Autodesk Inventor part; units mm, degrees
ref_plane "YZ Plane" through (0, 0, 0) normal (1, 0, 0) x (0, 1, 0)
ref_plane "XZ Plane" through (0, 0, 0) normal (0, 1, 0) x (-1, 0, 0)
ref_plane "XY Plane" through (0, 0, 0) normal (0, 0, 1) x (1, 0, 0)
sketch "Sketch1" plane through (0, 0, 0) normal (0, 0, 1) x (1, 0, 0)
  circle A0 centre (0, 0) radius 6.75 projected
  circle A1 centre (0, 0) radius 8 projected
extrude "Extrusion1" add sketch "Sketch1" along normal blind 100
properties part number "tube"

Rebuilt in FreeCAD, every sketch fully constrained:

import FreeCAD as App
import Part
import Sketcher
from FreeCAD import Vector
Q = App.Units.Quantity

doc = App.newDocument("Part")
body = doc.addObject("PartDesign::Body", "Body")

# Sketch on XY plane
sketch1 = body.newObject("Sketcher::SketchObject", "Sketch")
sketch1.AttachmentSupport = (doc.getObject("XY_Plane"), [""])
sketch1.MapMode = "FlatFace"
sketch1.addGeometry([
    Part.Circle(Vector(0, 0, 0), Vector(0, 0, 1), 8),
    Part.Circle(Vector(0, 0, 0), Vector(0, 0, 1), 7),
], False)
sketch1.addConstraint([
    Sketcher.Constraint("Coincident", 0, 3, -1, 1),
    Sketcher.Constraint("Coincident", 1, 3, -1, 1),
    Sketcher.Constraint("Diameter", 0, Q("16 mm")),
    Sketcher.Constraint("Diameter", 1, Q("13.5 mm")),
])
pad1 = body.newObject("PartDesign::Pad", "Pad")
pad1.Profile = sketch1
pad1.Length = 100

doc.recompute()
